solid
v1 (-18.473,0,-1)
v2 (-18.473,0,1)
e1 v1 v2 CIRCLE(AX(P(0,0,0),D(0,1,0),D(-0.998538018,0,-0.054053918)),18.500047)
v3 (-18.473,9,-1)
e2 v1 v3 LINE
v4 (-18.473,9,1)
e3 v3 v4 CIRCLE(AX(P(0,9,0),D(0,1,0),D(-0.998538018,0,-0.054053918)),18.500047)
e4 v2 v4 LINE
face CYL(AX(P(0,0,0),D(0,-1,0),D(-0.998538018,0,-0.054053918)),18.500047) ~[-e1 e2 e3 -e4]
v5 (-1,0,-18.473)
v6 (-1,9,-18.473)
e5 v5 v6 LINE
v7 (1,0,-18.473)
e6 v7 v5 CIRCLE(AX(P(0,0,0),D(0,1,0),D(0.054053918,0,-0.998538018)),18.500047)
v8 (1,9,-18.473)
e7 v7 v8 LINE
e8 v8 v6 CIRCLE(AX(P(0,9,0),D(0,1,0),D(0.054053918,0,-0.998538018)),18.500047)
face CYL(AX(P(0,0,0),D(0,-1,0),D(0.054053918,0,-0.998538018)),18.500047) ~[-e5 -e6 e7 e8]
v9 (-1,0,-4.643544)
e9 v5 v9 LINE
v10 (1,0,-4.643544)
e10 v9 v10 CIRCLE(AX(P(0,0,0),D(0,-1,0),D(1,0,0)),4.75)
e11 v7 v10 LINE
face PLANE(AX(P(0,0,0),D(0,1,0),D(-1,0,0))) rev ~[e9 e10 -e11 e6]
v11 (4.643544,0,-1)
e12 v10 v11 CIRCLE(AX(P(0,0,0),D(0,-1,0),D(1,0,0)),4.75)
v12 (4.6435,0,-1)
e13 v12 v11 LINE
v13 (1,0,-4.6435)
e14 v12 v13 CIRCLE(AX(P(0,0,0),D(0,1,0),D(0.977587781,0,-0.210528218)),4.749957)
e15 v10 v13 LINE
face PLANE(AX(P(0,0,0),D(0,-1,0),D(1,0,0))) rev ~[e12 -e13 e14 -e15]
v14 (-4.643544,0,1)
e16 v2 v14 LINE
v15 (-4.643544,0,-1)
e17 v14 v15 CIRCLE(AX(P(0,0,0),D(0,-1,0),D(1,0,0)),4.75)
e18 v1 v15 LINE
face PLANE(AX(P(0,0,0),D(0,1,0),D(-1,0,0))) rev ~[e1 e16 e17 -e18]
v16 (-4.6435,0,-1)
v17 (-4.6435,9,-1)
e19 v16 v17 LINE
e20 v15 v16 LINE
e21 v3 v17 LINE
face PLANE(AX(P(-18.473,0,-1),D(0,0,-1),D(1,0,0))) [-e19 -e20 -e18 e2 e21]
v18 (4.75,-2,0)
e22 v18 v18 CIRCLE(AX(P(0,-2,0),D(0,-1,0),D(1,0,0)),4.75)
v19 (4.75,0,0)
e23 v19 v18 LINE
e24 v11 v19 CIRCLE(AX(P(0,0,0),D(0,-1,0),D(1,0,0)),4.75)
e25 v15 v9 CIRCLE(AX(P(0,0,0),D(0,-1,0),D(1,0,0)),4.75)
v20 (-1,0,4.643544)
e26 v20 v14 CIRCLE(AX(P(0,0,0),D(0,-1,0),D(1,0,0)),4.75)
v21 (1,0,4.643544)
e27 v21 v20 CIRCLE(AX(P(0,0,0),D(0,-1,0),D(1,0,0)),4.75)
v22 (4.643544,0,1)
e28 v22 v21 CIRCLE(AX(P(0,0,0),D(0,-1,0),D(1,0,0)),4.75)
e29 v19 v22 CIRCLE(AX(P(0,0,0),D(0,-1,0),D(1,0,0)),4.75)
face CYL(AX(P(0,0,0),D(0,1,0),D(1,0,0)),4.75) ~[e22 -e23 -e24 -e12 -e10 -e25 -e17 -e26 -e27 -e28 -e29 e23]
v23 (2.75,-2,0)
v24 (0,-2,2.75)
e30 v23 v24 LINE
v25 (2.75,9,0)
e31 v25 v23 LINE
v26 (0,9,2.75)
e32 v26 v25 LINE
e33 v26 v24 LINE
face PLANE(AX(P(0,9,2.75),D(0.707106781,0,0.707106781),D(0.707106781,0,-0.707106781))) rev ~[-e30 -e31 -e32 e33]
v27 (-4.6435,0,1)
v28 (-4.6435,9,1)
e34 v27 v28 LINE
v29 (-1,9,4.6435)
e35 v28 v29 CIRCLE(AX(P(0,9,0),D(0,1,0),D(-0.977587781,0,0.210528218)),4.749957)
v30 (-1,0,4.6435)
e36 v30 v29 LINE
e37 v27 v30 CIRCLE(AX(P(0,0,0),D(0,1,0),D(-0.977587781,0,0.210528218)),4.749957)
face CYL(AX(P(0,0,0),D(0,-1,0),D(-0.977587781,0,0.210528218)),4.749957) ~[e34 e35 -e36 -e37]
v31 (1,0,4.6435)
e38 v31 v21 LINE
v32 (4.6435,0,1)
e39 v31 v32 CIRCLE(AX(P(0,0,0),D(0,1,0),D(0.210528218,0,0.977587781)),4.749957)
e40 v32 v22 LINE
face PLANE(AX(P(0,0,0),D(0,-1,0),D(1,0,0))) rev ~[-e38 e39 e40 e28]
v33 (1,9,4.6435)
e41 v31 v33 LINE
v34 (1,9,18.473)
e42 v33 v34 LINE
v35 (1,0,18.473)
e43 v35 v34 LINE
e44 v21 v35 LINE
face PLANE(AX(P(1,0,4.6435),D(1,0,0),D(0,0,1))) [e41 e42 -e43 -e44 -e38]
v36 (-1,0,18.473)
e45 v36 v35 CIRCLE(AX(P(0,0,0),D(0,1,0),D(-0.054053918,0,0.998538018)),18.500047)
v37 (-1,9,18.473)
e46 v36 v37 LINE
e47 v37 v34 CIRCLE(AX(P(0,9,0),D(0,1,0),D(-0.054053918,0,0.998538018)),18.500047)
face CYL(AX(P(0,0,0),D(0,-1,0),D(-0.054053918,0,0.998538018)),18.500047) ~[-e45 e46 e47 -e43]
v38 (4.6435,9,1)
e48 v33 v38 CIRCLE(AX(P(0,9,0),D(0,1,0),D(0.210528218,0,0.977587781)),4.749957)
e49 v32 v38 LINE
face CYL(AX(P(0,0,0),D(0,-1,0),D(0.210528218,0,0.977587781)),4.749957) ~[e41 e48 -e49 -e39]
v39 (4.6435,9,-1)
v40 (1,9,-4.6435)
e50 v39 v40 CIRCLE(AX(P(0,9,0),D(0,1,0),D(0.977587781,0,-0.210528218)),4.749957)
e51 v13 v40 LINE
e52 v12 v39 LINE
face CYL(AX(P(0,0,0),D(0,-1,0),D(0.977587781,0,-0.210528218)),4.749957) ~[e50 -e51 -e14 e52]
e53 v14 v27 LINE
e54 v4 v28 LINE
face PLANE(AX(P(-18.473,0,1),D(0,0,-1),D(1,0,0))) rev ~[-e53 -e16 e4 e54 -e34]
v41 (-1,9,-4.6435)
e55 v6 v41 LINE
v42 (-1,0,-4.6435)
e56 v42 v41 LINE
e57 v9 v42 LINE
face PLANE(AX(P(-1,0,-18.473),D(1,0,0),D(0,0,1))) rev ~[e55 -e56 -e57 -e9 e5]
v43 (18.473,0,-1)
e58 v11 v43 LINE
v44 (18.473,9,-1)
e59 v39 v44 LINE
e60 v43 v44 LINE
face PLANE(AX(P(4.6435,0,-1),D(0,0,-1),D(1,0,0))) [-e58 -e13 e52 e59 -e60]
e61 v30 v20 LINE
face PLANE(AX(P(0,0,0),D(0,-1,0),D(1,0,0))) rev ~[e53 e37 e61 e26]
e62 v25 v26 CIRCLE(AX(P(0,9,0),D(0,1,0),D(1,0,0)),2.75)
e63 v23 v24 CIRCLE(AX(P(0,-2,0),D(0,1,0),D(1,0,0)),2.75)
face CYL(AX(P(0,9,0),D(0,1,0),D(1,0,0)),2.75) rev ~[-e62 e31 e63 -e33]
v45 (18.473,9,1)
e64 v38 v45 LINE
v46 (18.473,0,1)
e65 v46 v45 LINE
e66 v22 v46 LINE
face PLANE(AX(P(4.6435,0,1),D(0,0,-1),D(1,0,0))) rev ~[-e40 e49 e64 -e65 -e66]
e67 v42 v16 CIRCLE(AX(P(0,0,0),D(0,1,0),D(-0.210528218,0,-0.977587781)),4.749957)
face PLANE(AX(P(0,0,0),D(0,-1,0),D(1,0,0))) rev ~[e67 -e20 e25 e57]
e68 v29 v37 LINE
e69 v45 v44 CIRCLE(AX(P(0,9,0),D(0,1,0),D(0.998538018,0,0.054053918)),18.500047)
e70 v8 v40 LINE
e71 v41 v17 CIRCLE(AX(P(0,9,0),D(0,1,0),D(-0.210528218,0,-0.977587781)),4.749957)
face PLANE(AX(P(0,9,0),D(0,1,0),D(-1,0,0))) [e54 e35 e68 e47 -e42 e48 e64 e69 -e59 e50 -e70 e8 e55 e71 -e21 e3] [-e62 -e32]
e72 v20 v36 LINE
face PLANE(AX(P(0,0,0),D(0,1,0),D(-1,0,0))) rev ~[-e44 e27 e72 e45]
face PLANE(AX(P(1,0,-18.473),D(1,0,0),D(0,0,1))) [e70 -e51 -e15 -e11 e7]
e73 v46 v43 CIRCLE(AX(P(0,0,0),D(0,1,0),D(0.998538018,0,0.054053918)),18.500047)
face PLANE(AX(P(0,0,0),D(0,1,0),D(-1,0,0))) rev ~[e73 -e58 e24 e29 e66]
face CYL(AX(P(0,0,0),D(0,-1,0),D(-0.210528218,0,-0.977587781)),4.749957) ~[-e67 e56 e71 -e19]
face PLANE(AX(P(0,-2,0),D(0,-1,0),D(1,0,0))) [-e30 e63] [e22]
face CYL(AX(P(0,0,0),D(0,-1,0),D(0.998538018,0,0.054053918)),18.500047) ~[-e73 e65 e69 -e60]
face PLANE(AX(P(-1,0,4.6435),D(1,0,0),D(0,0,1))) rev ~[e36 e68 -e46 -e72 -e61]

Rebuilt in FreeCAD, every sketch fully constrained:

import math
import FreeCAD as App
import Part
import Sketcher

doc = App.newDocument("Part")
body = doc.addObject("PartDesign::Body", "Body")

# Sketch on XZ plane
sketch1 = body.newObject("Sketcher::SketchObject", "Sketch")
sketch1.AttachmentSupport = (doc.getObject("XZ_Plane"), [""])
sketch1.MapMode = "FlatFace"
sketch1.addGeometry(Part.ArcOfCircle(Part.Circle(App.Vector(0, 0, 0), App.Vector(0, 0, 1), 18.5), math.radians(-93.1), math.radians(-86.9)), False)
sketch1.addGeometry(Part.LineSegment(App.Vector(-1, -18.5, 0), App.Vector(-1, -4.6, 0)), False)
sketch1.addGeometry(Part.ArcOfCircle(Part.Circle(App.Vector(0, 0, 0), App.Vector(0, 0, 1), 4.7), math.radians(-168), math.radians(-102)), False)
sketch1.addGeometry(Part.LineSegment(App.Vector(-4.6, -1, 0), App.Vector(-18.5, -1, 0)), False)
sketch1.addGeometry(Part.ArcOfCircle(Part.Circle(App.Vector(0, 0, 0), App.Vector(0, 0, 1), 18.5), math.radians(176.9), math.radians(183.1)), False)
sketch1.addGeometry(Part.LineSegment(App.Vector(-18.5, 1, 0), App.Vector(-4.6, 1, 0)), False)
sketch1.addGeometry(Part.ArcOfCircle(Part.Circle(App.Vector(0, 0, 0), App.Vector(0, 0, 1), 4.7), math.radians(102), math.radians(168)), False)
sketch1.addGeometry(Part.LineSegment(App.Vector(-1, 4.6, 0), App.Vector(-1, 18.5, 0)), False)
sketch1.addGeometry(Part.ArcOfCircle(Part.Circle(App.Vector(0, 0, 0), App.Vector(0, 0, 1), 18.5), math.radians(86.9), math.radians(93.1)), False)
sketch1.addGeometry(Part.LineSegment(App.Vector(1, 18.5, 0), App.Vector(1, 4.6, 0)), False)
sketch1.addGeometry(Part.ArcOfCircle(Part.Circle(App.Vector(0, 0, 0), App.Vector(0, 0, 1), 4.7), math.radians(12), math.radians(78)), False)
sketch1.addGeometry(Part.LineSegment(App.Vector(4.6, 1, 0), App.Vector(18.5, 1, 0)), False)
sketch1.addGeometry(Part.ArcOfCircle(Part.Circle(App.Vector(0, 0, 0), App.Vector(0, 0, 1), 18.5), math.radians(-3.1), math.radians(3.1)), False)
sketch1.addGeometry(Part.LineSegment(App.Vector(18.5, -1, 0), App.Vector(4.6, -1, 0)), False)
sketch1.addGeometry(Part.ArcOfCircle(Part.Circle(App.Vector(0, 0, 0), App.Vector(0, 0, 1), 4.7), math.radians(-78), math.radians(-12)), False)
sketch1.addGeometry(Part.LineSegment(App.Vector(1, -4.6, 0), App.Vector(1, -18.5, 0)), False)
sketch1.addConstraint(Sketcher.Constraint("Coincident", 0, 1, 1, 1))
sketch1.addConstraint(Sketcher.Constraint("Coincident", 1, 2, 2, 2))
sketch1.addConstraint(Sketcher.Constraint("Coincident", 2, 1, 3, 1))
sketch1.addConstraint(Sketcher.Constraint("Coincident", 3, 2, 4, 2))
sketch1.addConstraint(Sketcher.Constraint("Coincident", 4, 1, 5, 1))
sketch1.addConstraint(Sketcher.Constraint("Coincident", 5, 2, 6, 2))
sketch1.addConstraint(Sketcher.Constraint("Coincident", 6, 1, 7, 1))
sketch1.addConstraint(Sketcher.Constraint("Coincident", 7, 2, 8, 2))
sketch1.addConstraint(Sketcher.Constraint("Coincident", 8, 1, 9, 1))
sketch1.addConstraint(Sketcher.Constraint("Coincident", 9, 2, 10, 2))
sketch1.addConstraint(Sketcher.Constraint("Coincident", 10, 1, 11, 1))
sketch1.addConstraint(Sketcher.Constraint("Coincident", 11, 2, 12, 2))
sketch1.addConstraint(Sketcher.Constraint("Coincident", 12, 1, 13, 1))
sketch1.addConstraint(Sketcher.Constraint("Coincident", 13, 2, 14, 2))
sketch1.addConstraint(Sketcher.Constraint("Coincident", 14, 1, 15, 1))
sketch1.addConstraint(Sketcher.Constraint("Coincident", 15, 2, 0, 2))
sketch1.addConstraint(Sketcher.Constraint("Vertical", 1))
sketch1.addConstraint(Sketcher.Constraint("Horizontal", 3))
sketch1.addConstraint(Sketcher.Constraint("Horizontal", 5))
sketch1.addConstraint(Sketcher.Constraint("Vertical", 7))
sketch1.addConstraint(Sketcher.Constraint("Vertical", 9))
sketch1.addConstraint(Sketcher.Constraint("Horizontal", 11))
sketch1.addConstraint(Sketcher.Constraint("Horizontal", 13))
sketch1.addConstraint(Sketcher.Constraint("Vertical", 15))
sketch1.addConstraint(Sketcher.Constraint("Coincident", 0, 3, -1, 1))
sketch1.addConstraint(Sketcher.Constraint("Coincident", 2, 3, -1, 1))
sketch1.addConstraint(Sketcher.Constraint("Coincident", 4, 3, -1, 1))
sketch1.addConstraint(Sketcher.Constraint("Coincident", 6, 3, -1, 1))
sketch1.addConstraint(Sketcher.Constraint("Coincident", 8, 3, -1, 1))
sketch1.addConstraint(Sketcher.Constraint("Coincident", 10, 3, -1, 1))
sketch1.addConstraint(Sketcher.Constraint("Coincident", 12, 3, -1, 1))
sketch1.addConstraint(Sketcher.Constraint("Coincident", 14, 3, -1, 1))
sketch1.addConstraint(Sketcher.Constraint("Equal", 0, 4))
sketch1.addConstraint(Sketcher.Constraint("Equal", 2, 6))
sketch1.addConstraint(Sketcher.Constraint("Equal", 4, 8))
sketch1.addConstraint(Sketcher.Constraint("Equal", 6, 10))
sketch1.addConstraint(Sketcher.Constraint("Equal", 8, 12))
sketch1.addConstraint(Sketcher.Constraint("Equal", 10, 14))
sketch1.addConstraint(Sketcher.Constraint("Horizontal", 7, 2, 8, 1))
sketch1.addConstraint(Sketcher.Constraint("Horizontal", 5, 2, 10, 1))
sketch1.addConstraint(Sketcher.Constraint("Horizontal", 3, 2, 12, 1))
sketch1.addConstraint(Sketcher.Constraint("Horizontal", 1, 2, 14, 1))
sketch1.addConstraint(Sketcher.Constraint("Vertical", 3, 2, 4, 1))
sketch1.addConstraint(Sketcher.Constraint("Vertical", 1, 2, 6, 1))
sketch1.addConstraint(Sketcher.Constraint("Equal", 13, 1))
sketch1.addConstraint(Sketcher.Constraint("Radius", 0, 18.5))
sketch1.addConstraint(Sketcher.Constraint("Radius", 2, 4.75))
sketch1.addConstraint(Sketcher.Constraint("DistanceX", 0, 1, -1, 1, 1.0))
pad1 = body.newObject("PartDesign::Pad", "Pad")
pad1.Profile = sketch1
pad1.Length = 9
pad1.Reversed = True

# Sketch on XZ plane
sketch2 = body.newObject("Sketcher::SketchObject", "Sketch001")
sketch2.AttachmentSupport = (doc.getObject("XZ_Plane"), [""])
sketch2.MapMode = "FlatFace"
sketch2.addGeometry(Part.Circle(App.Vector(0, 0, 0), App.Vector(0, 0, 1), 4.8), False)
sketch2.addConstraint(Sketcher.Constraint("Coincident", 0, 3, -1, 1))
sketch2.addConstraint(Sketcher.Constraint("Diameter", 0, 9.5))
pad2 = body.newObject("PartDesign::Pad", "Pad001")
pad2.Profile = sketch2
pad2.Length = 2

# Sketch on XZ plane
sketch3 = body.newObject("Sketcher::SketchObject", "Sketch002")
sketch3.AttachmentSupport = (doc.getObject("XZ_Plane"), [""])
sketch3.MapMode = "FlatFace"
sketch3.AttachmentOffset = App.Placement(App.Vector(0, 0, -9), App.Rotation())
sketch3.addGeometry(Part.LineSegment(App.Vector(0, 2.8, 0), App.Vector(2.8, 0, 0)), False)
sketch3.addGeometry(Part.ArcOfCircle(Part.Circle(App.Vector(0, 0, 0), App.Vector(0, 0, 1), 2.8), math.radians(90), math.radians(360)), False)
sketch3.addConstraint(Sketcher.Constraint("Coincident", 0, 1, 1, 1))
sketch3.addConstraint(Sketcher.Constraint("Coincident", 1, 2, 0, 2))
sketch3.addConstraint(Sketcher.Constraint("Coincident", 1, 3, -1, 1))
sketch3.addConstraint(Sketcher.Constraint("PointOnObject", 0, 1, -2))
sketch3.addConstraint(Sketcher.Constraint("PointOnObject", 1, 2, -1))
sketch3.addConstraint(Sketcher.Constraint("Radius", 1, 2.75))
pocket1 = body.newObject("PartDesign::Pocket", "Pocket")
pocket1.Profile = sketch3
pocket1.Type = "ThroughAll"
pocket1.Reversed = True

doc.recompute()
